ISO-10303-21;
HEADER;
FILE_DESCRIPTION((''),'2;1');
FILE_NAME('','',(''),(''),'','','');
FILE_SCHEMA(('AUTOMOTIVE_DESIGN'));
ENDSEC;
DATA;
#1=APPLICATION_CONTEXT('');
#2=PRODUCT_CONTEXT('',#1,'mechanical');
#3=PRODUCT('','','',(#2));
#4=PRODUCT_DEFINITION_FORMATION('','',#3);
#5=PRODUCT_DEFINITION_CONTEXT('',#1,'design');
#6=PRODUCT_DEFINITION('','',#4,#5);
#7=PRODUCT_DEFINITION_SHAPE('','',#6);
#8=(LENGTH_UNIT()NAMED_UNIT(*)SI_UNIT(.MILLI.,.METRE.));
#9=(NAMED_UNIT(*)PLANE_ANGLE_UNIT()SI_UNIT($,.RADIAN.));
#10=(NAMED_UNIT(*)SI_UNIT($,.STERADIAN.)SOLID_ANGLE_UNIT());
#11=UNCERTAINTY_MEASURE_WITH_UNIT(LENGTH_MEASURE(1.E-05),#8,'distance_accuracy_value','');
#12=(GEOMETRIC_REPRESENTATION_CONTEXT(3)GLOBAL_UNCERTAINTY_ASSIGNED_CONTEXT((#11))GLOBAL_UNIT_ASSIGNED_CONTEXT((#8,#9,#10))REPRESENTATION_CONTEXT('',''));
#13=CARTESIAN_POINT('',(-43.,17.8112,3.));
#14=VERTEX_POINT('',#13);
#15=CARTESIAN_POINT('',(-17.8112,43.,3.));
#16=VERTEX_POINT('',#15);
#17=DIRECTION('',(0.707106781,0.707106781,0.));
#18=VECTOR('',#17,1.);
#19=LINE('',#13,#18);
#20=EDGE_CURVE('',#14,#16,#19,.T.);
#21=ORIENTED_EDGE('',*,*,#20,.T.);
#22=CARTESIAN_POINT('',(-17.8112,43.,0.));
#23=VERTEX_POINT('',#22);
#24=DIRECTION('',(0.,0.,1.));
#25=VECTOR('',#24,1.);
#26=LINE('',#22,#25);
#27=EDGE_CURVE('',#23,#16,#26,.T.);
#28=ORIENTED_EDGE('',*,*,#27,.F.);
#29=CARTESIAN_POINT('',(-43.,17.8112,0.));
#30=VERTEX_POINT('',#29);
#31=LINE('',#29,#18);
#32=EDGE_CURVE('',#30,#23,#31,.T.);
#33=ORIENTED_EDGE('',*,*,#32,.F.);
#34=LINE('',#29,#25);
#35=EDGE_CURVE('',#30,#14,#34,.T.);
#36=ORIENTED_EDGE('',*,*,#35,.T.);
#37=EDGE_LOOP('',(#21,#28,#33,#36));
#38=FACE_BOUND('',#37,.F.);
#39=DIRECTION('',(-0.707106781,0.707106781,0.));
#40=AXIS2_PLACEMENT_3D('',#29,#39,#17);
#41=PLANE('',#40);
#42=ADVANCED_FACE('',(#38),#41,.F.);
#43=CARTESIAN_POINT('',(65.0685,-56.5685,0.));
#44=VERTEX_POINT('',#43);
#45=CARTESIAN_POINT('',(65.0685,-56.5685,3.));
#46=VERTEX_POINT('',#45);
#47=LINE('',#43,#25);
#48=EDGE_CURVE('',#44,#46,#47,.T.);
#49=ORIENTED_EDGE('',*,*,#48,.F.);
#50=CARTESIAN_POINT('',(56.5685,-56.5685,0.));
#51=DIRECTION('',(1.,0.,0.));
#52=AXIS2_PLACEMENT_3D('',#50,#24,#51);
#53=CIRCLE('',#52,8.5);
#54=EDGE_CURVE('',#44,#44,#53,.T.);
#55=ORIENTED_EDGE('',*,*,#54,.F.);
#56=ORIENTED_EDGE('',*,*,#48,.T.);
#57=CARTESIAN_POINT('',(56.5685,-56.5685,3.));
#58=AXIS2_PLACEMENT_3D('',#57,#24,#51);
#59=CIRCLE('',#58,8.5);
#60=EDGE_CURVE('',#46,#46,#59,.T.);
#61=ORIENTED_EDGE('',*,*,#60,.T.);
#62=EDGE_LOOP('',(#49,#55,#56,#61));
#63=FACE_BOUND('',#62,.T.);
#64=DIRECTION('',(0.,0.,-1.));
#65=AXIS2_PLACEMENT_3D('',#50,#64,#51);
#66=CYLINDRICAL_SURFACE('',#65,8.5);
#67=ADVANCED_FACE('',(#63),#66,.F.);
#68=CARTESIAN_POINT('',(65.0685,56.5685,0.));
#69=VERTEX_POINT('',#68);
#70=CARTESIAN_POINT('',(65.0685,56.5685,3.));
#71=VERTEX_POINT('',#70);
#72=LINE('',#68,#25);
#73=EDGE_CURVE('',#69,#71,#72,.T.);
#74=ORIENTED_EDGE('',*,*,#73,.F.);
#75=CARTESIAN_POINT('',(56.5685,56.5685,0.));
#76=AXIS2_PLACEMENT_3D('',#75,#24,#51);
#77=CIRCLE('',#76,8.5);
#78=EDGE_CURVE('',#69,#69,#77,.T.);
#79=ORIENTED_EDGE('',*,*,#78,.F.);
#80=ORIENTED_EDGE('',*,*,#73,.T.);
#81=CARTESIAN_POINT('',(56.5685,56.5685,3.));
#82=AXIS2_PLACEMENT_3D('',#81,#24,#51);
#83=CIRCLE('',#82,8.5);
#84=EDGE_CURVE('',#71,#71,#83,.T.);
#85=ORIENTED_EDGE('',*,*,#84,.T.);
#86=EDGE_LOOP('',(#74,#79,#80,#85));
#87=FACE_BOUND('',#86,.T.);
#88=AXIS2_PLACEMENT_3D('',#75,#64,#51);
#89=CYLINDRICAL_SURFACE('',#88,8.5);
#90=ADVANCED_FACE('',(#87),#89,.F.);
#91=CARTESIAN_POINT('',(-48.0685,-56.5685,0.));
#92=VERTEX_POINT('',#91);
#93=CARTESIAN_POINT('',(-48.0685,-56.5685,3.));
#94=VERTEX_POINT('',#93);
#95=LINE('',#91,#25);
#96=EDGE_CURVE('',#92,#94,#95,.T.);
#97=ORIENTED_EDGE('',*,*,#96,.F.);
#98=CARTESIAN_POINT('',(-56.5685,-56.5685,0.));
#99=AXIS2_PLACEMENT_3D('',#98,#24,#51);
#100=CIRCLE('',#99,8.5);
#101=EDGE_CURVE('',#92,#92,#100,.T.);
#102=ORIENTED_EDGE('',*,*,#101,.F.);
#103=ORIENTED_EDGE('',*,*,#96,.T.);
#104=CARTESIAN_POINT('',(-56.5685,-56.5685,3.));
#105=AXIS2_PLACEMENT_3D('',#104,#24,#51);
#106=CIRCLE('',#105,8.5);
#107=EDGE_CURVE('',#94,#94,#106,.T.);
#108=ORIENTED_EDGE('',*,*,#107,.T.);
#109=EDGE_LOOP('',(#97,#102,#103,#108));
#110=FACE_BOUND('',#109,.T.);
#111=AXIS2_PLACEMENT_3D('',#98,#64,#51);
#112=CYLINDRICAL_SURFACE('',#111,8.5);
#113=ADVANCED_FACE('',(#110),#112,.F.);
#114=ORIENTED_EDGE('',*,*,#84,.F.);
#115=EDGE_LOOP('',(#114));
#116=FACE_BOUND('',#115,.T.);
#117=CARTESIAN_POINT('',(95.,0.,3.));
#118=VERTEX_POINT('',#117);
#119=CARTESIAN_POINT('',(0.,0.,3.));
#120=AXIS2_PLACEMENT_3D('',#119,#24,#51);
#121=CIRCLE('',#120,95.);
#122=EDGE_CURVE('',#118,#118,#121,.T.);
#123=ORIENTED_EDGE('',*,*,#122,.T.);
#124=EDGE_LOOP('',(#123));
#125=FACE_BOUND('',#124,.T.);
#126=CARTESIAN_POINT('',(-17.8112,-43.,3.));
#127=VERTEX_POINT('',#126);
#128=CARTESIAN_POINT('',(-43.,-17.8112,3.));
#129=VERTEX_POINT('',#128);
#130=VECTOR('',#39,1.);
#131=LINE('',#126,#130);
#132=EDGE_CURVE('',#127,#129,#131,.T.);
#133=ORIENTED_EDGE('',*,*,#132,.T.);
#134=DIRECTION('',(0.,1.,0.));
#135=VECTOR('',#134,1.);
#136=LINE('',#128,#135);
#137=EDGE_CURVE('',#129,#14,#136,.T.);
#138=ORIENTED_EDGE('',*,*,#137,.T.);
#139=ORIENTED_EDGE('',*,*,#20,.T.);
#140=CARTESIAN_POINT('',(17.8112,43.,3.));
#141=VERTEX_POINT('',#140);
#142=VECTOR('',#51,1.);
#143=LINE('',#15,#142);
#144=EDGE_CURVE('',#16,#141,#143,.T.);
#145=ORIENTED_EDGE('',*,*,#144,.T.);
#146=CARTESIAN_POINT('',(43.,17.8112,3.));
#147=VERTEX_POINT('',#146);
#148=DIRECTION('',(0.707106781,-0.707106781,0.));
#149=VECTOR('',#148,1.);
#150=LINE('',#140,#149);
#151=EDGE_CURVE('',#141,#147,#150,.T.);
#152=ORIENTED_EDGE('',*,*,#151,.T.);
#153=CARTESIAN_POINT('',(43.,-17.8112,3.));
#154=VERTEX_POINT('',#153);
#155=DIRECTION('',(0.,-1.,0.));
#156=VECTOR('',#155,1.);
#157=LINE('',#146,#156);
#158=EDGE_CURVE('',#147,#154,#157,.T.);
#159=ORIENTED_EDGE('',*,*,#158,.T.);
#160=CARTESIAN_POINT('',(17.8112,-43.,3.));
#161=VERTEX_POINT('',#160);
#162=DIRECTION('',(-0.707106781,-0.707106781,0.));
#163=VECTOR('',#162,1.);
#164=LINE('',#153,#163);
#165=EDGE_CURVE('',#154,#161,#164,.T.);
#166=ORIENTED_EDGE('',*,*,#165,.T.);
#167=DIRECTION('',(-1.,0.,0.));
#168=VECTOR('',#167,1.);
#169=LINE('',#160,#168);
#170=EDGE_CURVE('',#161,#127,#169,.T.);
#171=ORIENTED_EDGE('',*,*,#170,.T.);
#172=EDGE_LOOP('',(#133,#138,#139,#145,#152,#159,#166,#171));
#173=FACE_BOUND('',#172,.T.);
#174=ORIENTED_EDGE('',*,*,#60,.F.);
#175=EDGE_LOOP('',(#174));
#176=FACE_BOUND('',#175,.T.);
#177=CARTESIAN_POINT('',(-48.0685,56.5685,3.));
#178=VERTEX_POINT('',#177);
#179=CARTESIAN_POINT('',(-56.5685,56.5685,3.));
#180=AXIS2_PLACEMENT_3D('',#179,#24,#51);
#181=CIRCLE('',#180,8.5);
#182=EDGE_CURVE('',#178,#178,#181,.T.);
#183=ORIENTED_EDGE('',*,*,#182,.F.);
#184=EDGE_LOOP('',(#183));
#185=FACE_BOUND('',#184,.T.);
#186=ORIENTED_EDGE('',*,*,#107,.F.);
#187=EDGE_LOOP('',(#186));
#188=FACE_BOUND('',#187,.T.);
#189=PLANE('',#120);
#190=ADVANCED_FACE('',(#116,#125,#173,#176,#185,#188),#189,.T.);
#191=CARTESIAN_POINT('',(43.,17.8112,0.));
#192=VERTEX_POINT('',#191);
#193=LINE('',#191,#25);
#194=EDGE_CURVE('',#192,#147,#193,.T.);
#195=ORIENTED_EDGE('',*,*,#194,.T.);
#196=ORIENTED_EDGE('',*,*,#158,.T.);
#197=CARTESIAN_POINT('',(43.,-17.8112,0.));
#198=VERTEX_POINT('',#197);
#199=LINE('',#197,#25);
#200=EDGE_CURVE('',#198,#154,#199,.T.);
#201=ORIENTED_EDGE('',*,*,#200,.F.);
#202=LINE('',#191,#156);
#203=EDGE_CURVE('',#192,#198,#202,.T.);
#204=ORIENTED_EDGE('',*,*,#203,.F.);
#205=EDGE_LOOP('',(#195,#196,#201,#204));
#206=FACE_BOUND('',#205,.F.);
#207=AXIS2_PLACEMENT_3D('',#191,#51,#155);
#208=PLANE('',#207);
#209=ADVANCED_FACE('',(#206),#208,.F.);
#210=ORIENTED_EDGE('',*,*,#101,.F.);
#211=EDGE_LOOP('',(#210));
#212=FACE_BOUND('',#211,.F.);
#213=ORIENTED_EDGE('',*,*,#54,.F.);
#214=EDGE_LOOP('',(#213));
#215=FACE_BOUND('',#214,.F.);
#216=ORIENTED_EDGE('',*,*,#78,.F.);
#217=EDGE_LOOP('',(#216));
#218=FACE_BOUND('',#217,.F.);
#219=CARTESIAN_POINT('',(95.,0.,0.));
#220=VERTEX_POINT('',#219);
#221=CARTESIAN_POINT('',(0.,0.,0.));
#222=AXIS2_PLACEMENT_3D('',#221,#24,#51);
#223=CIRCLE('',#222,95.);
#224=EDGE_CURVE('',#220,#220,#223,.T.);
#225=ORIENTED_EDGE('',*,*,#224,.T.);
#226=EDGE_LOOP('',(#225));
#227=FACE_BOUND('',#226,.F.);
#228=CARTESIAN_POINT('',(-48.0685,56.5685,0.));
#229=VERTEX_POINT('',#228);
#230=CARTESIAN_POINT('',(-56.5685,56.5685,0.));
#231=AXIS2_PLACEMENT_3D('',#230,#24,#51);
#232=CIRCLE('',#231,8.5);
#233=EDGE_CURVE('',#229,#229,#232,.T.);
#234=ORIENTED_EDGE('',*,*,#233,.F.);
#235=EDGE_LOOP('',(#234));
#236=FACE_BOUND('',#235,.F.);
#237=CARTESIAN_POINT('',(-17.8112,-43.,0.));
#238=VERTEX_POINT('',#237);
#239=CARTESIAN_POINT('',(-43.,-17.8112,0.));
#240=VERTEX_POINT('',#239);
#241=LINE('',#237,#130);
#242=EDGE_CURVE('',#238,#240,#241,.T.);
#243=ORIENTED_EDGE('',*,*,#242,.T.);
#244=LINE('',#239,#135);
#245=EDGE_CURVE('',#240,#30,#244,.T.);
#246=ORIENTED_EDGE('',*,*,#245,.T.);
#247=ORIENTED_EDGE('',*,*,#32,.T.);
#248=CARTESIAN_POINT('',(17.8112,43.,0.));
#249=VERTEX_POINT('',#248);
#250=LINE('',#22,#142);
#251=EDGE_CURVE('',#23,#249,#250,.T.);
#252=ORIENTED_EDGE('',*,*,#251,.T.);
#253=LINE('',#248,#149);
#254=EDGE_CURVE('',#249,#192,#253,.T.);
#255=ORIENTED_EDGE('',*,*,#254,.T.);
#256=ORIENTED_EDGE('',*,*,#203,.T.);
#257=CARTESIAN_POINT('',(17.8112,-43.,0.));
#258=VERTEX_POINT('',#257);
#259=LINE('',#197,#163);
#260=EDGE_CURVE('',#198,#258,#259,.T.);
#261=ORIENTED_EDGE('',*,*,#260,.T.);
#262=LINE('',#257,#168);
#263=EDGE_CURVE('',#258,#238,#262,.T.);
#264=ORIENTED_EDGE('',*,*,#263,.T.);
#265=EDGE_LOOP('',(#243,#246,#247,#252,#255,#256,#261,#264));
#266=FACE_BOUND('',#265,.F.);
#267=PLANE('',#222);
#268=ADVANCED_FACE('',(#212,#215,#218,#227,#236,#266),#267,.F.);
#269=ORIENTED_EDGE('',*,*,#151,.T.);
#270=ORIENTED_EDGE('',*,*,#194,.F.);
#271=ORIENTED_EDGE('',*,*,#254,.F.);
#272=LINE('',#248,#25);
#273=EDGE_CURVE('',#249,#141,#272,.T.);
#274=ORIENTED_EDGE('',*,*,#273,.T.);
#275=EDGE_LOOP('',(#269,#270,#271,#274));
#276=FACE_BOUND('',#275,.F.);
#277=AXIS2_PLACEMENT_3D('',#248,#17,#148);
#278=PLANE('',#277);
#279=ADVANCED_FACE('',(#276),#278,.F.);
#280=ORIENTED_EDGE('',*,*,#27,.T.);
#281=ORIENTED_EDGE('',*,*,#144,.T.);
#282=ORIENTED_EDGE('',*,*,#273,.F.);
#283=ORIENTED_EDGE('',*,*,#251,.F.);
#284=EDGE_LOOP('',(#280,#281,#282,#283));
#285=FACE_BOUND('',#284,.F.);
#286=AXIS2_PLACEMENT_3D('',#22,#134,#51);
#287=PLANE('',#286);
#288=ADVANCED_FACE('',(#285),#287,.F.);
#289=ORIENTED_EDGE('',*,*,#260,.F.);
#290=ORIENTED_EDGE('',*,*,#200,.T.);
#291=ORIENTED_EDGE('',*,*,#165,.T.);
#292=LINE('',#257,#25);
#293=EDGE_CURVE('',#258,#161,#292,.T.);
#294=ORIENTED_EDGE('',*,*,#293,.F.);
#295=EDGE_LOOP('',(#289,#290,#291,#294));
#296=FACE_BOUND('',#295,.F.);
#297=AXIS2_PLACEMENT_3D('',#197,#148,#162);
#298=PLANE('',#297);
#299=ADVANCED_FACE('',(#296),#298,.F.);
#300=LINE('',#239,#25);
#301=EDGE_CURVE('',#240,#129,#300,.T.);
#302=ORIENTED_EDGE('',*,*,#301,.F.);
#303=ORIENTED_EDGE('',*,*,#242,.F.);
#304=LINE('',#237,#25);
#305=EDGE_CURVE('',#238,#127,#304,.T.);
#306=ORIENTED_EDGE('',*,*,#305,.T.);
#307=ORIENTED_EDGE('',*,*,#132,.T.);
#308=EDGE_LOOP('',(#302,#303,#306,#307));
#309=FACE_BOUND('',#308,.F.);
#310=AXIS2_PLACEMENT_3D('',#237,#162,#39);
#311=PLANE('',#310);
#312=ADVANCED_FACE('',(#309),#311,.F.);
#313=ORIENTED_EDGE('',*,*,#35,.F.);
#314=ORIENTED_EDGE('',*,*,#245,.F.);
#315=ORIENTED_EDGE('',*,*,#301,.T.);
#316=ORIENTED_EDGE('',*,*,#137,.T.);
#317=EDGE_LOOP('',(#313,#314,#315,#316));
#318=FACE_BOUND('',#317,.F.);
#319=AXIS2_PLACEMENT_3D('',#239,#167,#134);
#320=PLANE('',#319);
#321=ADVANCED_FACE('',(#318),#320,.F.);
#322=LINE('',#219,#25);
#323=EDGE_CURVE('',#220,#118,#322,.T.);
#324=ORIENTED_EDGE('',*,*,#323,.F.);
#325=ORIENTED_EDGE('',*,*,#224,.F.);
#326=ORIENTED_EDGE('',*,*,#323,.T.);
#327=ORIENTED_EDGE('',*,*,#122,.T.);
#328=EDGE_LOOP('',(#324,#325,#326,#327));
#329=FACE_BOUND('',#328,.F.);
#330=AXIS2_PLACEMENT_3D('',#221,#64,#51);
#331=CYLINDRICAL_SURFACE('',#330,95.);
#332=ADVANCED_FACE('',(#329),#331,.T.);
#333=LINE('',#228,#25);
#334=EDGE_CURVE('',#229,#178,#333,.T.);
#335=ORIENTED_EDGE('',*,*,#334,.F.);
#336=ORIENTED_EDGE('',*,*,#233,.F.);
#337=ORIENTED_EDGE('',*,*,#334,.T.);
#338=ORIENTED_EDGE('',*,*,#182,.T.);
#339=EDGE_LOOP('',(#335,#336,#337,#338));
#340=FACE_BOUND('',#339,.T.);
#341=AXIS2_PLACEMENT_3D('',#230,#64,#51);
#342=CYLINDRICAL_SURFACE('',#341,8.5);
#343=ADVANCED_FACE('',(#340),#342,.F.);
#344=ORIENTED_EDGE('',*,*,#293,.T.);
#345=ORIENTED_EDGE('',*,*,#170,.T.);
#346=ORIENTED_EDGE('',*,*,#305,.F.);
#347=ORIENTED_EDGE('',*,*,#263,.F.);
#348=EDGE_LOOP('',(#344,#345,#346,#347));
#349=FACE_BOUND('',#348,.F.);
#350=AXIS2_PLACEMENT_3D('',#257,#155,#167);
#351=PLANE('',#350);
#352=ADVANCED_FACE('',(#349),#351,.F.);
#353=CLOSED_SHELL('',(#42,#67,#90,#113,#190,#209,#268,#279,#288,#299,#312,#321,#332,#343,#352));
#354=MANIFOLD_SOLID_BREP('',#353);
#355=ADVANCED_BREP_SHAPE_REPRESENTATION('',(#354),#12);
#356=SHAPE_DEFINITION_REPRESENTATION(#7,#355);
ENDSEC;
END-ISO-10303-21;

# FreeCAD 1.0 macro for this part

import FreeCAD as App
import Part
import Sketcher

doc = App.newDocument("Part")
body = doc.addObject("PartDesign::Body", "Body")

sketch1 = body.newObject("Sketcher::SketchObject", "Sketch")
sketch1.AttachmentSupport = (doc.getObject("XY_Plane"), [""])
sketch1.MapMode = "FlatFace"
sketch1.addGeometry(Part.Circle(App.Vector(0, 0, 0), App.Vector(0, 0, 1), 95), False)
sketch1.addGeometry(Part.Circle(App.Vector(-57, -57, 0), App.Vector(0, 0, 1), 8), False)
sketch1.addGeometry(Part.Circle(App.Vector(57, -57, 0), App.Vector(0, 0, 1), 8), False)
sketch1.addGeometry(Part.Circle(App.Vector(-57, 57, 0), App.Vector(0, 0, 1), 8), False)
sketch1.addGeometry(Part.LineSegment(App.Vector(43, -18, 0), App.Vector(18, -43, 0)), False)
sketch1.addGeometry(Part.LineSegment(App.Vector(18, -43, 0), App.Vector(-18, -43, 0)), False)
sketch1.addGeometry(Part.LineSegment(App.Vector(-18, -43, 0), App.Vector(-43, -18, 0)), False)
sketch1.addGeometry(Part.LineSegment(App.Vector(-43, -18, 0), App.Vector(-43, 18, 0)), False)
sketch1.addGeometry(Part.LineSegment(App.Vector(-43, 18, 0), App.Vector(-18, 43, 0)), False)
sketch1.addGeometry(Part.LineSegment(App.Vector(-18, 43, 0), App.Vector(18, 43, 0)), False)
sketch1.addGeometry(Part.LineSegment(App.Vector(18, 43, 0), App.Vector(43, 18, 0)), False)
sketch1.addGeometry(Part.LineSegment(App.Vector(43, 18, 0), App.Vector(43, -18, 0)), False)
sketch1.addGeometry(Part.Circle(App.Vector(57, 57, 0), App.Vector(0, 0, 1), 8), False)
sketch1.addConstraint(Sketcher.Constraint("Coincident", 4, 2, 5, 1))
sketch1.addConstraint(Sketcher.Constraint("Coincident", 5, 2, 6, 1))
sketch1.addConstraint(Sketcher.Constraint("Coincident", 6, 2, 7, 1))
sketch1.addConstraint(Sketcher.Constraint("Coincident", 7, 2, 8, 1))
sketch1.addConstraint(Sketcher.Constraint("Coincident", 8, 2, 9, 1))
sketch1.addConstraint(Sketcher.Constraint("Coincident", 9, 2, 10, 1))
sketch1.addConstraint(Sketcher.Constraint("Coincident", 10, 2, 11, 1))
sketch1.addConstraint(Sketcher.Constraint("Coincident", 11, 2, 4, 1))
sketch1.addConstraint(Sketcher.Constraint("Horizontal", 5))
sketch1.addConstraint(Sketcher.Constraint("Vertical", 7))
sketch1.addConstraint(Sketcher.Constraint("Horizontal", 9))
sketch1.addConstraint(Sketcher.Constraint("Vertical", 11))
sketch1.addConstraint(Sketcher.Constraint("Coincident", 0, 3, -1, 1))
sketch1.addConstraint(Sketcher.Constraint("Equal", 1, 2))
sketch1.addConstraint(Sketcher.Constraint("Equal", 2, 3))
sketch1.addConstraint(Sketcher.Constraint("Equal", 3, 12))
sketch1.addConstraint(Sketcher.Constraint("Symmetric", 2, 3, 3, 3, -1, 1))
sketch1.addConstraint(Sketcher.Constraint("Symmetric", 1, 3, 12, 3, -1, 1))
sketch1.addConstraint(Sketcher.Constraint("Symmetric", 4, 2, 8, 2, -1, 1))
sketch1.addConstraint(Sketcher.Constraint("Symmetric", 6, 2, 10, 2, -1, 1))
sketch1.addConstraint(Sketcher.Constraint("Symmetric", 1, 3, 2, 3, -2))
sketch1.addConstraint(Sketcher.Constraint("Perpendicular", 4, 6))
sketch1.addConstraint(Sketcher.Constraint("Perpendicular", 6, 8))
sketch1.addConstraint(Sketcher.Constraint("Perpendicular", 8, 10))
sketch1.addConstraint(Sketcher.Constraint("Horizontal", 7, 2, 10, 2))
sketch1.addConstraint(Sketcher.Constraint("Vertical", 5, 2, 8, 2))
sketch1.addConstraint(Sketcher.Constraint("Equal", 9, 7))
sketch1.addConstraint(Sketcher.Constraint("Diameter", 0, 190.0))
sketch1.addConstraint(Sketcher.Constraint("Diameter", 1, 17.0))
sketch1.addConstraint(Sketcher.Constraint("DistanceY", 4, 2, -1, 1, 43.0))
sketch1.addConstraint(Sketcher.Constraint("DistanceX", 5, 2, 5, 1, 35.6224))
sketch1.addConstraint(Sketcher.Constraint("DistanceX", 1, 3, 2, 3, 113.137))
sketch1.addConstraint(Sketcher.Constraint("DistanceY", 1, 3, 3, 3, 113.137))
pad1 = body.newObject("PartDesign::Pad", "Pad")
pad1.Profile = sketch1
pad1.Length = 3

doc.recompute()
